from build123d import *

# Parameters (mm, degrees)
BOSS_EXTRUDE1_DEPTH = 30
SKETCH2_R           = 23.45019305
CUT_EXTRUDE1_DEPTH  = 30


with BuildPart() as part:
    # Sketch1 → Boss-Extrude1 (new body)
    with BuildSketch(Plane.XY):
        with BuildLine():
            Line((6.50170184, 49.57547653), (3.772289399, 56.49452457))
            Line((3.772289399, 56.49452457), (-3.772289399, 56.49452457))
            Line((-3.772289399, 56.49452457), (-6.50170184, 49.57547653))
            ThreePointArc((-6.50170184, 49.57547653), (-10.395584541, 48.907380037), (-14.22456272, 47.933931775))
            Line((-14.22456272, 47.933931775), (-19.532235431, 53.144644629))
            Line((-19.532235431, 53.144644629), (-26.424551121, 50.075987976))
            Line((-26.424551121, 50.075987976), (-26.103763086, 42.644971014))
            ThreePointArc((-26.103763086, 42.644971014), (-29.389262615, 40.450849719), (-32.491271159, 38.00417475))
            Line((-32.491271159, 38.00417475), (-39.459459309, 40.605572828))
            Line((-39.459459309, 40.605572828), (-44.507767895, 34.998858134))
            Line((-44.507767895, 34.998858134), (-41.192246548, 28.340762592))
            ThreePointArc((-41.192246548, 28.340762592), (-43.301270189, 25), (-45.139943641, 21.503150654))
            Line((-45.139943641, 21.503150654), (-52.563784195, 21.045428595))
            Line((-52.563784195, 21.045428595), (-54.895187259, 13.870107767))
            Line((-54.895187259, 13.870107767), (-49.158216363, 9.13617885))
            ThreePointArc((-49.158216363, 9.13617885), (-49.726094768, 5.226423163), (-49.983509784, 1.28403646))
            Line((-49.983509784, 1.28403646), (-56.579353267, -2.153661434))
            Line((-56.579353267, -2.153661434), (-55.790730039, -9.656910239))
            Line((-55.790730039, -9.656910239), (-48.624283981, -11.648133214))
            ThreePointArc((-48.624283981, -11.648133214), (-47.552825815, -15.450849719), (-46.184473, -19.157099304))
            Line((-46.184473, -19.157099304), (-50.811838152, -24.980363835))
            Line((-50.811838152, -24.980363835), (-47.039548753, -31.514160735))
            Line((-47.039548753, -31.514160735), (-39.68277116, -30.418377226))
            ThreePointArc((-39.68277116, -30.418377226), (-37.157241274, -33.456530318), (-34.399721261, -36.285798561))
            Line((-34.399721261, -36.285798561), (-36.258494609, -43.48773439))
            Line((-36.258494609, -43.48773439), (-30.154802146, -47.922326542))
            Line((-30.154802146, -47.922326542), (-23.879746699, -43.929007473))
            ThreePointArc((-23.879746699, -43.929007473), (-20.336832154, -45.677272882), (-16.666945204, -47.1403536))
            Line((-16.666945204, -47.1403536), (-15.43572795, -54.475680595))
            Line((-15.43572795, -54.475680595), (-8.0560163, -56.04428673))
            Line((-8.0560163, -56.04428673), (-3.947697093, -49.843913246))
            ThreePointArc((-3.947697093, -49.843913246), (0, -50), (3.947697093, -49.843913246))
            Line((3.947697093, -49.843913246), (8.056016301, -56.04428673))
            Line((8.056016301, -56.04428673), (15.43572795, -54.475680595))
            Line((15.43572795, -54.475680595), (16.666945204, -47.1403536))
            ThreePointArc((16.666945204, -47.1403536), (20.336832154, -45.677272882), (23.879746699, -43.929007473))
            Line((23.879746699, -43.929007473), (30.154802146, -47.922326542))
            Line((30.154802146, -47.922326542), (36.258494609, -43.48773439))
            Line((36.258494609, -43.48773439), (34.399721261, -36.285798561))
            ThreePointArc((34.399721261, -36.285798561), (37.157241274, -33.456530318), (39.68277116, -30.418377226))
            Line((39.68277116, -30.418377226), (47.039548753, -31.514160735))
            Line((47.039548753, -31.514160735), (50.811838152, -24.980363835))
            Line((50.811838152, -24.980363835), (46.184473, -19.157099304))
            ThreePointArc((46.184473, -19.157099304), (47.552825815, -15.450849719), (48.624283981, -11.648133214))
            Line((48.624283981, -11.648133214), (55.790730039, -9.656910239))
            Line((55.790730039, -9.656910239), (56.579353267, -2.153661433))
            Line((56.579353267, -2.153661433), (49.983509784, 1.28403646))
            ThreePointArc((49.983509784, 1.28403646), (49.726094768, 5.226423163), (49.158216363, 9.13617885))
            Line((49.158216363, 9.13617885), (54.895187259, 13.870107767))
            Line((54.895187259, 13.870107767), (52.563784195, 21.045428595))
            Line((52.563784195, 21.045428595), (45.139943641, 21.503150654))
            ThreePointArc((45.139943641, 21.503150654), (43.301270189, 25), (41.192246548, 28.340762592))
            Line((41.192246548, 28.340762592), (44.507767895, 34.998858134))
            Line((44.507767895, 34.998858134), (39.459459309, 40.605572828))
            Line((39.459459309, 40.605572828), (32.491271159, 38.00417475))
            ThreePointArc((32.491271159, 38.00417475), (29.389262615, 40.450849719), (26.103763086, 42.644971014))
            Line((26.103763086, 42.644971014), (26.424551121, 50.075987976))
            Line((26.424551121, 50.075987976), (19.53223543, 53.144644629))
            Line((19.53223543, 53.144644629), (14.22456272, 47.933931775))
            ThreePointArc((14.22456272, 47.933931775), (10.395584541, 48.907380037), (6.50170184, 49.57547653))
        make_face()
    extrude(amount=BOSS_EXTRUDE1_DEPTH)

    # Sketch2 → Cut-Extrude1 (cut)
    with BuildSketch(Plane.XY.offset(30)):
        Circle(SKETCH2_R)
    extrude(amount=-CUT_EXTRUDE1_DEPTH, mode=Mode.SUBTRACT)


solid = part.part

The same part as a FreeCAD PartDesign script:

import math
import FreeCAD as App
import Part
import Sketcher
Q = App.Units.Quantity

doc = App.newDocument("Part")
body = doc.addObject("PartDesign::Body", "Body")

sketch1 = body.newObject("Sketcher::SketchObject", "Sketch")
sketch1.AttachmentSupport = (doc.getObject("XY_Plane"), [""])
sketch1.MapMode = "FlatFace"
sketch1.addGeometry([
    Part.LineSegment(App.Vector(6.501702, 49.575477, 0), App.Vector(3.772289, 56.494525, 0)),
    Part.LineSegment(App.Vector(3.772289, 56.494525, 0), App.Vector(-3.772289, 56.494525, 0)),
    Part.LineSegment(App.Vector(-3.772289, 56.494525, 0), App.Vector(-6.501702, 49.575477, 0)),
    Part.ArcOfCircle(Part.Circle(App.Vector(0, 0, 0), App.Vector(0, 0, 1), 50), math.radians(97.471559), math.radians(106.528441)),
    Part.LineSegment(App.Vector(-14.224563, 47.933932, 0), App.Vector(-19.532235, 53.144645, 0)),
    Part.LineSegment(App.Vector(-19.532235, 53.144645, 0), App.Vector(-26.424551, 50.075988, 0)),
    Part.LineSegment(App.Vector(-26.424551, 50.075988, 0), App.Vector(-26.103763, 42.644971, 0)),
    Part.ArcOfCircle(Part.Circle(App.Vector(0, 0, 0), App.Vector(0, 0, 1), 50), math.radians(121.471559), math.radians(130.528441)),
    Part.LineSegment(App.Vector(-32.491271, 38.004175, 0), App.Vector(-39.459459, 40.605573, 0)),
    Part.LineSegment(App.Vector(-39.459459, 40.605573, 0), App.Vector(-44.507768, 34.998858, 0)),
    Part.LineSegment(App.Vector(-44.507768, 34.998858, 0), App.Vector(-41.192247, 28.340763, 0)),
    Part.ArcOfCircle(Part.Circle(App.Vector(0, 0, 0), App.Vector(0, 0, 1), 50), math.radians(145.471559), math.radians(154.528441)),
    Part.LineSegment(App.Vector(-45.139944, 21.503151, 0), App.Vector(-52.563784, 21.045429, 0)),
    Part.LineSegment(App.Vector(-52.563784, 21.045429, 0), App.Vector(-54.895187, 13.870108, 0)),
    Part.LineSegment(App.Vector(-54.895187, 13.870108, 0), App.Vector(-49.158216, 9.136179, 0)),
    Part.ArcOfCircle(Part.Circle(App.Vector(0, 0, 0), App.Vector(0, 0, 1), 50), math.radians(169.471559), math.radians(178.528441)),
    Part.LineSegment(App.Vector(-49.98351, 1.284036, 0), App.Vector(-56.579353, -2.153661, 0)),
    Part.LineSegment(App.Vector(-56.579353, -2.153661, 0), App.Vector(-55.79073, -9.65691, 0)),
    Part.LineSegment(App.Vector(-55.79073, -9.65691, 0), App.Vector(-48.624284, -11.648133, 0)),
    Part.ArcOfCircle(Part.Circle(App.Vector(0, 0, 0), App.Vector(0, 0, 1), 50), math.radians(-166.528441), math.radians(-157.471559)),
    Part.LineSegment(App.Vector(-46.184473, -19.157099, 0), App.Vector(-50.811838, -24.980364, 0)),
    Part.LineSegment(App.Vector(-50.811838, -24.980364, 0), App.Vector(-47.039549, -31.514161, 0)),
    Part.LineSegment(App.Vector(-47.039549, -31.514161, 0), App.Vector(-39.682771, -30.418377, 0)),
    Part.ArcOfCircle(Part.Circle(App.Vector(0, 0, 0), App.Vector(0, 0, 1), 50), math.radians(-142.528441), math.radians(-133.471559)),
    Part.LineSegment(App.Vector(-34.399721, -36.285799, 0), App.Vector(-36.258495, -43.487734, 0)),
    Part.LineSegment(App.Vector(-36.258495, -43.487734, 0), App.Vector(-30.154802, -47.922327, 0)),
    Part.LineSegment(App.Vector(-30.154802, -47.922327, 0), App.Vector(-23.879747, -43.929007, 0)),
    Part.ArcOfCircle(Part.Circle(App.Vector(0, 0, 0), App.Vector(0, 0, 1), 50), math.radians(-118.528441), math.radians(-109.471559)),
    Part.LineSegment(App.Vector(-16.666945, -47.140354, 0), App.Vector(-15.435728, -54.475681, 0)),
    Part.LineSegment(App.Vector(-15.435728, -54.475681, 0), App.Vector(-8.056016, -56.044287, 0)),
    Part.LineSegment(App.Vector(-8.056016, -56.044287, 0), App.Vector(-3.947697, -49.843913, 0)),
    Part.ArcOfCircle(Part.Circle(App.Vector(0, 0, 0), App.Vector(0, 0, 1), 50), math.radians(-94.528441), math.radians(-85.471559)),
    Part.LineSegment(App.Vector(3.947697, -49.843913, 0), App.Vector(8.056016, -56.044287, 0)),
    Part.LineSegment(App.Vector(8.056016, -56.044287, 0), App.Vector(15.435728, -54.475681, 0)),
    Part.LineSegment(App.Vector(15.435728, -54.475681, 0), App.Vector(16.666945, -47.140354, 0)),
    Part.ArcOfCircle(Part.Circle(App.Vector(0, 0, 0), App.Vector(0, 0, 1), 50), math.radians(-70.528441), math.radians(-61.471559)),
    Part.LineSegment(App.Vector(23.879747, -43.929007, 0), App.Vector(30.154802, -47.922327, 0)),
    Part.LineSegment(App.Vector(30.154802, -47.922327, 0), App.Vector(36.258495, -43.487734, 0)),
    Part.LineSegment(App.Vector(36.258495, -43.487734, 0), App.Vector(34.399721, -36.285799, 0)),
    Part.ArcOfCircle(Part.Circle(App.Vector(0, 0, 0), App.Vector(0, 0, 1), 50), math.radians(-46.528441), math.radians(-37.471559)),
    Part.LineSegment(App.Vector(39.682771, -30.418377, 0), App.Vector(47.039549, -31.514161, 0)),
    Part.LineSegment(App.Vector(47.039549, -31.514161, 0), App.Vector(50.811838, -24.980364, 0)),
    Part.LineSegment(App.Vector(50.811838, -24.980364, 0), App.Vector(46.184473, -19.157099, 0)),
    Part.ArcOfCircle(Part.Circle(App.Vector(0, 0, 0), App.Vector(0, 0, 1), 50), math.radians(-22.528441), math.radians(-13.471559)),
    Part.LineSegment(App.Vector(48.624284, -11.648133, 0), App.Vector(55.79073, -9.65691, 0)),
    Part.LineSegment(App.Vector(55.79073, -9.65691, 0), App.Vector(56.579353, -2.153661, 0)),
    Part.LineSegment(App.Vector(56.579353, -2.153661, 0), App.Vector(49.98351, 1.284036, 0)),
    Part.ArcOfCircle(Part.Circle(App.Vector(0, 0, 0), App.Vector(0, 0, 1), 50), math.radians(1.471559), math.radians(10.528441)),
    Part.LineSegment(App.Vector(49.158216, 9.136179, 0), App.Vector(54.895187, 13.870108, 0)),
    Part.LineSegment(App.Vector(54.895187, 13.870108, 0), App.Vector(52.563784, 21.045429, 0)),
    Part.LineSegment(App.Vector(52.563784, 21.045429, 0), App.Vector(45.139944, 21.503151, 0)),
    Part.ArcOfCircle(Part.Circle(App.Vector(0, 0, 0), App.Vector(0, 0, 1), 50), math.radians(25.471559), math.radians(34.528441)),
    Part.LineSegment(App.Vector(41.192247, 28.340763, 0), App.Vector(44.507768, 34.998858, 0)),
    Part.LineSegment(App.Vector(44.507768, 34.998858, 0), App.Vector(39.459459, 40.605573, 0)),
    Part.LineSegment(App.Vector(39.459459, 40.605573, 0), App.Vector(32.491271, 38.004175, 0)),
    Part.ArcOfCircle(Part.Circle(App.Vector(0, 0, 0), App.Vector(0, 0, 1), 50), math.radians(49.471559), math.radians(58.528441)),
    Part.LineSegment(App.Vector(26.103763, 42.644971, 0), App.Vector(26.424551, 50.075988, 0)),
    Part.LineSegment(App.Vector(26.424551, 50.075988, 0), App.Vector(19.532235, 53.144645, 0)),
    Part.LineSegment(App.Vector(19.532235, 53.144645, 0), App.Vector(14.224563, 47.933932, 0)),
    Part.ArcOfCircle(Part.Circle(App.Vector(0, 0, 0), App.Vector(0, 0, 1), 50), math.radians(73.471559), math.radians(82.528441)),
], False)
sketch1.addConstraint([
    Sketcher.Constraint("Coincident", 0, 2, 1, 1),
    Sketcher.Constraint("Coincident", 1, 2, 2, 1),
    Sketcher.Constraint("Coincident", 2, 2, 3, 1),
    Sketcher.Constraint("Coincident", 3, 2, 4, 1),
    Sketcher.Constraint("Coincident", 4, 2, 5, 1),
    Sketcher.Constraint("Coincident", 5, 2, 6, 1),
    Sketcher.Constraint("Coincident", 6, 2, 7, 1),
    Sketcher.Constraint("Coincident", 7, 2, 8, 1),
    Sketcher.Constraint("Coincident", 8, 2, 9, 1),
    Sketcher.Constraint("Coincident", 9, 2, 10, 1),
    Sketcher.Constraint("Coincident", 10, 2, 11, 1),
    Sketcher.Constraint("Coincident", 11, 2, 12, 1),
    Sketcher.Constraint("Coincident", 12, 2, 13, 1),
    Sketcher.Constraint("Coincident", 13, 2, 14, 1),
    Sketcher.Constraint("Coincident", 14, 2, 15, 1),
    Sketcher.Constraint("Coincident", 15, 2, 16, 1),
    Sketcher.Constraint("Coincident", 16, 2, 17, 1),
    Sketcher.Constraint("Coincident", 17, 2, 18, 1),
    Sketcher.Constraint("Coincident", 18, 2, 19, 1),
    Sketcher.Constraint("Coincident", 19, 2, 20, 1),
    Sketcher.Constraint("Coincident", 20, 2, 21, 1),
    Sketcher.Constraint("Coincident", 21, 2, 22, 1),
    Sketcher.Constraint("Coincident", 22, 2, 23, 1),
    Sketcher.Constraint("Coincident", 23, 2, 24, 1),
    Sketcher.Constraint("Coincident", 24, 2, 25, 1),
    Sketcher.Constraint("Coincident", 25, 2, 26, 1),
    Sketcher.Constraint("Coincident", 26, 2, 27, 1),
    Sketcher.Constraint("Coincident", 27, 2, 28, 1),
    Sketcher.Constraint("Coincident", 28, 2, 29, 1),
    Sketcher.Constraint("Coincident", 29, 2, 30, 1),
    Sketcher.Constraint("Coincident", 30, 2, 31, 1),
    Sketcher.Constraint("Coincident", 31, 2, 32, 1),
    Sketcher.Constraint("Coincident", 32, 2, 33, 1),
    Sketcher.Constraint("Coincident", 33, 2, 34, 1),
    Sketcher.Constraint("Coincident", 34, 2, 35, 1),
    Sketcher.Constraint("Coincident", 35, 2, 36, 1),
    Sketcher.Constraint("Coincident", 36, 2, 37, 1),
    Sketcher.Constraint("Coincident", 37, 2, 38, 1),
    Sketcher.Constraint("Coincident", 38, 2, 39, 1),
    Sketcher.Constraint("Coincident", 39, 2, 40, 1),
    Sketcher.Constraint("Coincident", 40, 2, 41, 1),
    Sketcher.Constraint("Coincident", 41, 2, 42, 1),
    Sketcher.Constraint("Coincident", 42, 2, 43, 1),
    Sketcher.Constraint("Coincident", 43, 2, 44, 1),
    Sketcher.Constraint("Coincident", 44, 2, 45, 1),
    Sketcher.Constraint("Coincident", 45, 2, 46, 1),
    Sketcher.Constraint("Coincident", 46, 2, 47, 1),
    Sketcher.Constraint("Coincident", 47, 2, 48, 1),
    Sketcher.Constraint("Coincident", 48, 2, 49, 1),
    Sketcher.Constraint("Coincident", 49, 2, 50, 1),
    Sketcher.Constraint("Coincident", 50, 2, 51, 1),
    Sketcher.Constraint("Coincident", 51, 2, 52, 1),
    Sketcher.Constraint("Coincident", 52, 2, 53, 1),
    Sketcher.Constraint("Coincident", 53, 2, 54, 1),
    Sketcher.Constraint("Coincident", 54, 2, 55, 1),
    Sketcher.Constraint("Coincident", 55, 2, 56, 1),
    Sketcher.Constraint("Coincident", 56, 2, 57, 1),
    Sketcher.Constraint("Coincident", 57, 2, 58, 1),
    Sketcher.Constraint("Coincident", 58, 2, 59, 1),
    Sketcher.Constraint("Coincident", 59, 2, 0, 1),
    Sketcher.Constraint("Horizontal", 1),
    Sketcher.Constraint("Coincident", 3, 3, -1, 1),
    Sketcher.Constraint("Coincident", 7, 3, -1, 1),
    Sketcher.Constraint("Coincident", 11, 3, -1, 1),
    Sketcher.Constraint("Coincident", 15, 3, -1, 1),
    Sketcher.Constraint("Coincident", 19, 3, -1, 1),
    Sketcher.Constraint("Coincident", 23, 3, -1, 1),
    Sketcher.Constraint("Coincident", 27, 3, -1, 1),
    Sketcher.Constraint("Coincident", 31, 3, -1, 1),
    Sketcher.Constraint("Coincident", 35, 3, -1, 1),
    Sketcher.Constraint("Coincident", 39, 3, -1, 1),
    Sketcher.Constraint("Coincident", 43, 3, -1, 1),
    Sketcher.Constraint("Coincident", 47, 3, -1, 1),
    Sketcher.Constraint("Coincident", 51, 3, -1, 1),
    Sketcher.Constraint("Coincident", 55, 3, -1, 1),
    Sketcher.Constraint("Coincident", 59, 3, -1, 1),
    Sketcher.Constraint("Equal", 3, 7),
    Sketcher.Constraint("Equal", 7, 11),
    Sketcher.Constraint("Equal", 11, 15),
    Sketcher.Constraint("Equal", 15, 19),
    Sketcher.Constraint("Equal", 19, 23),
    Sketcher.Constraint("Equal", 23, 27),
    Sketcher.Constraint("Equal", 27, 31),
    Sketcher.Constraint("Equal", 31, 35),
    Sketcher.Constraint("Equal", 35, 39),
    Sketcher.Constraint("Equal", 39, 43),
    Sketcher.Constraint("Equal", 43, 47),
    Sketcher.Constraint("Equal", 47, 51),
    Sketcher.Constraint("Equal", 51, 55),
    Sketcher.Constraint("Equal", 55, 59),
    Sketcher.Constraint("Symmetric", 29, 2, 32, 2, -2),
    Sketcher.Constraint("Symmetric", 28, 2, 33, 2, -2),
    Sketcher.Constraint("Symmetric", 25, 2, 36, 2, -2),
    Sketcher.Constraint("Symmetric", 24, 2, 37, 2, -2),
    Sketcher.Constraint("Symmetric", 21, 2, 40, 2, -2),
    Sketcher.Constraint("Symmetric", 20, 2, 41, 2, -2),
    Sketcher.Constraint("Symmetric", 17, 2, 44, 2, -2),
    Sketcher.Constraint("Symmetric", 16, 2, 45, 2, -2),
    Sketcher.Constraint("Symmetric", 13, 2, 48, 2, -2),
    Sketcher.Constraint("Symmetric", 12, 2, 49, 2, -2),
    Sketcher.Constraint("Symmetric", 9, 2, 52, 2, -2),
    Sketcher.Constraint("Symmetric", 8, 2, 53, 2, -2),
    Sketcher.Constraint("Symmetric", 5, 2, 56, 2, -2),
    Sketcher.Constraint("Symmetric", 4, 2, 57, 2, -2),
    Sketcher.Constraint("Horizontal", 30, 2, 31, 2),
    Sketcher.Constraint("Horizontal", 27, 2, 34, 2),
    Sketcher.Constraint("Horizontal", 26, 2, 35, 2),
    Sketcher.Constraint("Horizontal", 23, 2, 38, 2),
    Sketcher.Constraint("Horizontal", 22, 2, 39, 2),
    Sketcher.Constraint("Horizontal", 19, 2, 42, 2),
    Sketcher.Constraint("Horizontal", 18, 2, 43, 2),
    Sketcher.Constraint("Horizontal", 15, 2, 46, 2),
    Sketcher.Constraint("Horizontal", 14, 2, 47, 2),
    Sketcher.Constraint("Horizontal", 11, 2, 50, 2),
    Sketcher.Constraint("Horizontal", 10, 2, 51, 2),
    Sketcher.Constraint("Horizontal", 7, 2, 54, 2),
    Sketcher.Constraint("Horizontal", 6, 2, 55, 2),
    Sketcher.Constraint("Horizontal", 3, 2, 58, 2),
    Sketcher.Constraint("Horizontal", 2, 2, 59, 2),
    Sketcher.Constraint("Equal", 0, 2),
    Sketcher.Constraint("Equal", 2, 4),
    Sketcher.Constraint("Equal", 4, 6),
    Sketcher.Constraint("Equal", 6, 8),
    Sketcher.Constraint("Equal", 5, 9),
    Sketcher.Constraint("Equal", 8, 10),
    Sketcher.Constraint("Equal", 10, 12),
    Sketcher.Constraint("Equal", 9, 13),
    Sketcher.Constraint("Equal", 12, 14),
    Sketcher.Constraint("Equal", 14, 16),
    Sketcher.Constraint("Equal", 13, 17),
    Sketcher.Constraint("Equal", 16, 18),
    Sketcher.Constraint("Equal", 18, 20),
    Sketcher.Constraint("Equal", 17, 21),
    Sketcher.Constraint("Equal", 20, 22),
    Sketcher.Constraint("Equal", 22, 24),
    Sketcher.Constraint("Equal", 21, 25),
    Sketcher.Constraint("Equal", 24, 26),
    Sketcher.Constraint("Equal", 26, 28),
    Sketcher.Constraint("Equal", 25, 29),
    Sketcher.Constraint("Equal", 28, 30),
    Sketcher.Constraint("Radius", 3, 50.0),
    Sketcher.Constraint("Angle", 5, Q("-156 deg")),
    Sketcher.Constraint("Angle", 9, Q("-132 deg")),
    Sketcher.Constraint("Angle", 13, Q("-108 deg")),
    Sketcher.Constraint("Angle", 17, Q("-84 deg")),
    Sketcher.Constraint("Angle", 21, Q("-60 deg")),
    Sketcher.Constraint("Angle", 25, Q("-36 deg")),
    Sketcher.Constraint("Angle", 29, Q("-12 deg")),
    Sketcher.Constraint("DistanceX", 1, 2, 1, 1, 7.544579),
    Sketcher.Constraint("DistanceX", 2, 2, -1, 1, 6.501702),
    Sketcher.Constraint("DistanceY", 19, 2, -1, 1, 19.157099),
    Sketcher.Constraint("DistanceY", 23, 2, -1, 1, 36.285799),
    Sketcher.Constraint("Distance", 5, 7.544579),
    Sketcher.Constraint("DistanceY", -1, 1, 3, 2, 47.933932),
    Sketcher.Constraint("DistanceX", 5, 2, -1, 1, 26.424551),
    Sketcher.Constraint("DistanceY", -1, 1, 6, 2, 42.644971),
    Sketcher.Constraint("DistanceX", 7, 2, -1, 1, 32.491271),
    Sketcher.Constraint("DistanceX", 8, 2, -1, 1, 39.459459),
    Sketcher.Constraint("DistanceY", -1, 1, 11, 2, 21.503151),
    Sketcher.Constraint("DistanceY", -1, 1, 12, 2, 21.045429),
    Sketcher.Constraint("DistanceX", 15, 2, -1, 1, 49.98351),
    Sketcher.Constraint("DistanceY", 16, 2, -1, 1, 2.153661),
    Sketcher.Constraint("DistanceX", 20, 2, -1, 1, 50.811838),
    Sketcher.Constraint("DistanceY", 28, 2, -1, 1, 54.475681),
    Sketcher.Constraint("DistanceX", 24, 2, -1, 1, 36.258495),
    Sketcher.Constraint("DistanceX", 27, 2, -1, 1, 16.666945),
])
pad1 = body.newObject("PartDesign::Pad", "Pad")
pad1.Profile = sketch1
pad1.Length = 30

sketch2 = body.newObject("Sketcher::SketchObject", "Sketch001")
sketch2.AttachmentSupport = (doc.getObject("XY_Plane"), [""])
sketch2.MapMode = "FlatFace"
sketch2.AttachmentOffset = App.Placement(App.Vector(0, 0, 30), App.Rotation())
sketch2.addGeometry(Part.Circle(App.Vector(0, 0, 0), App.Vector(0, 0, 1), 23.450193), False)
sketch2.addConstraint([
    Sketcher.Constraint("Coincident", 0, 3, -1, 1),
    Sketcher.Constraint("Diameter", 0, 46.900386),
])
pocket1 = body.newObject("PartDesign::Pocket", "Pocket")
pocket1.Profile = sketch2
pocket1.Length = 30

doc.recompute()
